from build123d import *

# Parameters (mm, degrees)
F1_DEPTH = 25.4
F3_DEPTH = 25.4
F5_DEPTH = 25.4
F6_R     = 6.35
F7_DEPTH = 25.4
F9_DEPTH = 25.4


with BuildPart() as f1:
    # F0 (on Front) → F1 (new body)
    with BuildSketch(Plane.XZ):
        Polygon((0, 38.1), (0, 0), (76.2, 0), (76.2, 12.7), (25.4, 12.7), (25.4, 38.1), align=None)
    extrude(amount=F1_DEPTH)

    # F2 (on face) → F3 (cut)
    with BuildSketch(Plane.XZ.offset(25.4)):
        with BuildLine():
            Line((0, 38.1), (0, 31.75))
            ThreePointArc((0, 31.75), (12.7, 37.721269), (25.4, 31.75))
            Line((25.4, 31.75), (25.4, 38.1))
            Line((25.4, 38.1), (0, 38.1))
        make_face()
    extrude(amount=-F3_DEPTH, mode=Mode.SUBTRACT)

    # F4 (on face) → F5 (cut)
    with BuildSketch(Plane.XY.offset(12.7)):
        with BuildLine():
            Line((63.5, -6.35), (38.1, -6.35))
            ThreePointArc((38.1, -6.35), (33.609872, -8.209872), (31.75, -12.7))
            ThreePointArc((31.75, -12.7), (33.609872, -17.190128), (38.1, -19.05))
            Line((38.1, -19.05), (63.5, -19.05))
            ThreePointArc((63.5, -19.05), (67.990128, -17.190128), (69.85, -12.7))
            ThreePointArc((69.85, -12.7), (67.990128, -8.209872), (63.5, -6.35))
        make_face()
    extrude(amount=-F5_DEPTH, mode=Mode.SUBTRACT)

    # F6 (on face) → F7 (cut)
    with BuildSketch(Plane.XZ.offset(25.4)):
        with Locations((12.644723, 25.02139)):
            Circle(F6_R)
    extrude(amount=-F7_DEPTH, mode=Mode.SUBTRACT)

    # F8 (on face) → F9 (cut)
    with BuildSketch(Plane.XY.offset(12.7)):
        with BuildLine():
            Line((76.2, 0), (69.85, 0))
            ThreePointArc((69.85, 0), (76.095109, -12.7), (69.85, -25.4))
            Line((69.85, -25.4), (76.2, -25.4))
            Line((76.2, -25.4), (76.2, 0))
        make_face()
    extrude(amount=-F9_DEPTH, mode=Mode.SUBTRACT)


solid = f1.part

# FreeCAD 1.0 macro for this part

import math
import FreeCAD as App
import Part
import Sketcher

V = App.Vector
Q = App.Units.Quantity

doc = App.newDocument("Part")
body = doc.addObject("PartDesign::Body", "Body")

sketch1 = body.newObject("Sketcher::SketchObject", "Sketch")
sketch1.AttachmentSupport = (doc.getObject("XZ_Plane"), [""])
sketch1.MapMode = "FlatFace"
sketch1.addGeometry(Part.LineSegment(V(0, 38, 0), V(0, 0, 0)), False)
sketch1.addGeometry(Part.LineSegment(V(0, 0, 0), V(76, 0, 0)), False)
sketch1.addGeometry(Part.LineSegment(V(76, 0, 0), V(76, 13, 0)), False)
sketch1.addGeometry(Part.LineSegment(V(76, 13, 0), V(25, 13, 0)), False)
sketch1.addGeometry(Part.LineSegment(V(25, 13, 0), V(25, 38, 0)), False)
sketch1.addGeometry(Part.LineSegment(V(25, 38, 0), V(0, 38, 0)), False)
sketch1.addConstraint(Sketcher.Constraint("Coincident", 0, 2, 1, 1))
sketch1.addConstraint(Sketcher.Constraint("Coincident", 1, 2, 2, 1))
sketch1.addConstraint(Sketcher.Constraint("Coincident", 2, 2, 3, 1))
sketch1.addConstraint(Sketcher.Constraint("Coincident", 3, 2, 4, 1))
sketch1.addConstraint(Sketcher.Constraint("Coincident", 4, 2, 5, 1))
sketch1.addConstraint(Sketcher.Constraint("Coincident", 5, 2, 0, 1))
sketch1.addConstraint(Sketcher.Constraint("Vertical", 0))
sketch1.addConstraint(Sketcher.Constraint("Horizontal", 1))
sketch1.addConstraint(Sketcher.Constraint("Vertical", 2))
sketch1.addConstraint(Sketcher.Constraint("Horizontal", 3))
sketch1.addConstraint(Sketcher.Constraint("Vertical", 4))
sketch1.addConstraint(Sketcher.Constraint("Horizontal", 5))
sketch1.addConstraint(Sketcher.Constraint("Coincident", 0, 2, -1, 1))
sketch1.addConstraint(Sketcher.Constraint("Equal", 5, 4))
sketch1.addConstraint(Sketcher.Constraint("DistanceX", 1, 1, 1, 2, Q("3 in")))
sketch1.addConstraint(Sketcher.Constraint("DistanceX", 3, 2, 3, 1, Q("2 in")))
sketch1.addConstraint(Sketcher.Constraint("DistanceY", 0, 2, 0, 1, Q("1.5 in")))
pad1 = body.newObject("PartDesign::Pad", "Pad")
pad1.Profile = sketch1
pad1.Length = Q("1 in")

sketch2 = body.newObject("Sketcher::SketchObject", "Sketch001")
sketch2.AttachmentSupport = (doc.getObject("XZ_Plane"), [""])
sketch2.MapMode = "FlatFace"
sketch2.AttachmentOffset = App.Placement(V(0, 0, 1 * 25.4), App.Rotation())
sketch2.addGeometry(Part.LineSegment(V(0, 38, 0), V(0, 32, 0)), False)
sketch2.addGeometry(Part.ArcOfCircle(Part.Circle(V(13, 21, 0), V(0, 0, 1), 16), math.radians(40), math.radians(140)), False)
sketch2.addGeometry(Part.LineSegment(V(25, 32, 0), V(25, 38, 0)), False)
sketch2.addGeometry(Part.LineSegment(V(25, 38, 0), V(0, 38, 0)), False)
sketch2.addConstraint(Sketcher.Constraint("Coincident", 0, 2, 1, 2))
sketch2.addConstraint(Sketcher.Constraint("Coincident", 1, 1, 2, 1))
sketch2.addConstraint(Sketcher.Constraint("Coincident", 2, 2, 3, 1))
sketch2.addConstraint(Sketcher.Constraint("Coincident", 3, 2, 0, 1))
sketch2.addConstraint(Sketcher.Constraint("Vertical", 0))
sketch2.addConstraint(Sketcher.Constraint("Vertical", 2))
sketch2.addConstraint(Sketcher.Constraint("Horizontal", 3))
sketch2.addConstraint(Sketcher.Constraint("PointOnObject", 0, 2, -2))
sketch2.addConstraint(Sketcher.Constraint("Horizontal", 0, 2, 1, 1))
sketch2.addConstraint(Sketcher.Constraint("DistanceX", 3, 2, 3, 1, Q("1 in")))
sketch2.addConstraint(Sketcher.Constraint("DistanceY", 0, 2, 0, 1, Q("0.25 in")))
sketch2.addConstraint(Sketcher.Constraint("DistanceY", -1, 1, 2, 2, Q("1.5 in")))
sketch2.addConstraint(Sketcher.Constraint("Radius", 1, Q("16.491139 mm")))
pocket1 = body.newObject("PartDesign::Pocket", "Pocket")
pocket1.Profile = sketch2
pocket1.Length = Q("1 in")

sketch3 = body.newObject("Sketcher::SketchObject", "Sketch002")
sketch3.AttachmentSupport = (doc.getObject("XY_Plane"), [""])
sketch3.MapMode = "FlatFace"
sketch3.AttachmentOffset = App.Placement(V(0, 0, 0.5 * 25.4), App.Rotation())
sketch3.addGeometry(Part.LineSegment(V(64, -6, 0), V(38, -6, 0)), False)
sketch3.addGeometry(Part.ArcOfCircle(Part.Circle(V(38, -13, 0), V(0, 0, 1), 6), math.radians(90), math.radians(180)), False)
sketch3.addGeometry(Part.ArcOfCircle(Part.Circle(V(38, -13, 0), V(0, 0, 1), 6), math.radians(-180), math.radians(-90)), False)
sketch3.addGeometry(Part.LineSegment(V(38, -19, 0), V(64, -19, 0)), False)
sketch3.addGeometry(Part.ArcOfCircle(Part.Circle(V(63, -13, 0), V(0, 0, 1), 6), math.radians(-90), math.radians(0)), False)
sketch3.addGeometry(Part.ArcOfCircle(Part.Circle(V(63, -13, 0), V(0, 0, 1), 6), math.radians(0), math.radians(90)), False)
sketch3.addConstraint(Sketcher.Constraint("Tangent", 0, 2, 1, 1))
sketch3.addConstraint(Sketcher.Constraint("Tangent", 1, 2, 2, 1))
sketch3.addConstraint(Sketcher.Constraint("Tangent", 2, 2, 3, 1))
sketch3.addConstraint(Sketcher.Constraint("Tangent", 3, 2, 4, 1))
sketch3.addConstraint(Sketcher.Constraint("Tangent", 4, 2, 5, 1))
sketch3.addConstraint(Sketcher.Constraint("Tangent", 5, 2, 0, 1))
sketch3.addConstraint(Sketcher.Constraint("Horizontal", 0))
sketch3.addConstraint(Sketcher.Constraint("Horizontal", 3))
sketch3.addConstraint(Sketcher.Constraint("Equal", 1, 2))
sketch3.addConstraint(Sketcher.Constraint("Equal", 2, 4))
sketch3.addConstraint(Sketcher.Constraint("Horizontal", 5, 3, 1, 2))
sketch3.addConstraint(Sketcher.Constraint("Horizontal", 1, 2, 4, 2))
sketch3.addConstraint(Sketcher.Constraint("DistanceX", 0, 2, 0, 1, Q("1 in")))
sketch3.addConstraint(Sketcher.Constraint("Radius", 1, Q("0.25 in")))
sketch3.addConstraint(Sketcher.Constraint("DistanceX", -1, 1, 1, 3, Q("1.5 in")))
sketch3.addConstraint(Sketcher.Constraint("DistanceY", 1, 3, -1, 1, Q("0.5 in")))
pocket2 = body.newObject("PartDesign::Pocket", "Pocket001")
pocket2.Profile = sketch3
pocket2.Length = Q("1 in")

sketch4 = body.newObject("Sketcher::SketchObject", "Sketch003")
sketch4.AttachmentSupport = (doc.getObject("XZ_Plane"), [""])
sketch4.MapMode = "FlatFace"
sketch4.AttachmentOffset = App.Placement(V(0, 0, 1 * 25.4), App.Rotation())
sketch4.addGeometry(Part.Circle(V(13, 25, 0), V(0, 0, 1), 6), False)
sketch4.addConstraint(Sketcher.Constraint("Diameter", 0, Q("0.5 in")))
sketch4.addConstraint(Sketcher.Constraint("DistanceY", -1, 1, 0, 3, Q("25.02139 mm")))
sketch4.addConstraint(Sketcher.Constraint("DistanceX", -1, 1, 0, 3, Q("12.644723 mm")))
pocket3 = body.newObject("PartDesign::Pocket", "Pocket002")
pocket3.Profile = sketch4
pocket3.Length = Q("1 in")

sketch5 = body.newObject("Sketcher::SketchObject", "Sketch004")
sketch5.AttachmentSupport = (doc.getObject("XY_Plane"), [""])
sketch5.MapMode = "FlatFace"
sketch5.AttachmentOffset = App.Placement(V(0, 0, 0.5 * 25.4), App.Rotation())
sketch5.addGeometry(Part.LineSegment(V(76, 0, 0), V(70, 0, 0)), False)
sketch5.addGeometry(Part.ArcOfCircle(Part.Circle(V(60, -13, 0), V(0, 0, 1), 16), math.radians(-52), math.radians(52)), False)
sketch5.addGeometry(Part.LineSegment(V(70, -25, 0), V(76, -25, 0)), False)
sketch5.addGeometry(Part.LineSegment(V(76, -25, 0), V(76, 0, 0)), False)
sketch5.addConstraint(Sketcher.Constraint("Coincident", 0, 2, 1, 2))
sketch5.addConstraint(Sketcher.Constraint("Coincident", 1, 1, 2, 1))
sketch5.addConstraint(Sketcher.Constraint("Coincident", 2, 2, 3, 1))
sketch5.addConstraint(Sketcher.Constraint("Coincident", 3, 2, 0, 1))
sketch5.addConstraint(Sketcher.Constraint("Horizontal", 0))
sketch5.addConstraint(Sketcher.Constraint("Horizontal", 2))
sketch5.addConstraint(Sketcher.Constraint("Vertical", 3))
sketch5.addConstraint(Sketcher.Constraint("PointOnObject", 0, 2, -1))
sketch5.addConstraint(Sketcher.Constraint("Vertical", 0, 2, 1, 1))
sketch5.addConstraint(Sketcher.Constraint("DistanceY", 3, 1, 3, 2, Q("1 in")))
sketch5.addConstraint(Sketcher.Constraint("DistanceX", -1, 1, 2, 2, Q("3 in")))
sketch5.addConstraint(Sketcher.Constraint("DistanceX", 0, 2, 0, 1, Q("0.25 in")))
sketch5.addConstraint(Sketcher.Constraint("Radius", 1, Q("16.03586 mm")))
pocket4 = body.newObject("PartDesign::Pocket", "Pocket003")
pocket4.Profile = sketch5
pocket4.Length = Q("1 in")

doc.recompute()
